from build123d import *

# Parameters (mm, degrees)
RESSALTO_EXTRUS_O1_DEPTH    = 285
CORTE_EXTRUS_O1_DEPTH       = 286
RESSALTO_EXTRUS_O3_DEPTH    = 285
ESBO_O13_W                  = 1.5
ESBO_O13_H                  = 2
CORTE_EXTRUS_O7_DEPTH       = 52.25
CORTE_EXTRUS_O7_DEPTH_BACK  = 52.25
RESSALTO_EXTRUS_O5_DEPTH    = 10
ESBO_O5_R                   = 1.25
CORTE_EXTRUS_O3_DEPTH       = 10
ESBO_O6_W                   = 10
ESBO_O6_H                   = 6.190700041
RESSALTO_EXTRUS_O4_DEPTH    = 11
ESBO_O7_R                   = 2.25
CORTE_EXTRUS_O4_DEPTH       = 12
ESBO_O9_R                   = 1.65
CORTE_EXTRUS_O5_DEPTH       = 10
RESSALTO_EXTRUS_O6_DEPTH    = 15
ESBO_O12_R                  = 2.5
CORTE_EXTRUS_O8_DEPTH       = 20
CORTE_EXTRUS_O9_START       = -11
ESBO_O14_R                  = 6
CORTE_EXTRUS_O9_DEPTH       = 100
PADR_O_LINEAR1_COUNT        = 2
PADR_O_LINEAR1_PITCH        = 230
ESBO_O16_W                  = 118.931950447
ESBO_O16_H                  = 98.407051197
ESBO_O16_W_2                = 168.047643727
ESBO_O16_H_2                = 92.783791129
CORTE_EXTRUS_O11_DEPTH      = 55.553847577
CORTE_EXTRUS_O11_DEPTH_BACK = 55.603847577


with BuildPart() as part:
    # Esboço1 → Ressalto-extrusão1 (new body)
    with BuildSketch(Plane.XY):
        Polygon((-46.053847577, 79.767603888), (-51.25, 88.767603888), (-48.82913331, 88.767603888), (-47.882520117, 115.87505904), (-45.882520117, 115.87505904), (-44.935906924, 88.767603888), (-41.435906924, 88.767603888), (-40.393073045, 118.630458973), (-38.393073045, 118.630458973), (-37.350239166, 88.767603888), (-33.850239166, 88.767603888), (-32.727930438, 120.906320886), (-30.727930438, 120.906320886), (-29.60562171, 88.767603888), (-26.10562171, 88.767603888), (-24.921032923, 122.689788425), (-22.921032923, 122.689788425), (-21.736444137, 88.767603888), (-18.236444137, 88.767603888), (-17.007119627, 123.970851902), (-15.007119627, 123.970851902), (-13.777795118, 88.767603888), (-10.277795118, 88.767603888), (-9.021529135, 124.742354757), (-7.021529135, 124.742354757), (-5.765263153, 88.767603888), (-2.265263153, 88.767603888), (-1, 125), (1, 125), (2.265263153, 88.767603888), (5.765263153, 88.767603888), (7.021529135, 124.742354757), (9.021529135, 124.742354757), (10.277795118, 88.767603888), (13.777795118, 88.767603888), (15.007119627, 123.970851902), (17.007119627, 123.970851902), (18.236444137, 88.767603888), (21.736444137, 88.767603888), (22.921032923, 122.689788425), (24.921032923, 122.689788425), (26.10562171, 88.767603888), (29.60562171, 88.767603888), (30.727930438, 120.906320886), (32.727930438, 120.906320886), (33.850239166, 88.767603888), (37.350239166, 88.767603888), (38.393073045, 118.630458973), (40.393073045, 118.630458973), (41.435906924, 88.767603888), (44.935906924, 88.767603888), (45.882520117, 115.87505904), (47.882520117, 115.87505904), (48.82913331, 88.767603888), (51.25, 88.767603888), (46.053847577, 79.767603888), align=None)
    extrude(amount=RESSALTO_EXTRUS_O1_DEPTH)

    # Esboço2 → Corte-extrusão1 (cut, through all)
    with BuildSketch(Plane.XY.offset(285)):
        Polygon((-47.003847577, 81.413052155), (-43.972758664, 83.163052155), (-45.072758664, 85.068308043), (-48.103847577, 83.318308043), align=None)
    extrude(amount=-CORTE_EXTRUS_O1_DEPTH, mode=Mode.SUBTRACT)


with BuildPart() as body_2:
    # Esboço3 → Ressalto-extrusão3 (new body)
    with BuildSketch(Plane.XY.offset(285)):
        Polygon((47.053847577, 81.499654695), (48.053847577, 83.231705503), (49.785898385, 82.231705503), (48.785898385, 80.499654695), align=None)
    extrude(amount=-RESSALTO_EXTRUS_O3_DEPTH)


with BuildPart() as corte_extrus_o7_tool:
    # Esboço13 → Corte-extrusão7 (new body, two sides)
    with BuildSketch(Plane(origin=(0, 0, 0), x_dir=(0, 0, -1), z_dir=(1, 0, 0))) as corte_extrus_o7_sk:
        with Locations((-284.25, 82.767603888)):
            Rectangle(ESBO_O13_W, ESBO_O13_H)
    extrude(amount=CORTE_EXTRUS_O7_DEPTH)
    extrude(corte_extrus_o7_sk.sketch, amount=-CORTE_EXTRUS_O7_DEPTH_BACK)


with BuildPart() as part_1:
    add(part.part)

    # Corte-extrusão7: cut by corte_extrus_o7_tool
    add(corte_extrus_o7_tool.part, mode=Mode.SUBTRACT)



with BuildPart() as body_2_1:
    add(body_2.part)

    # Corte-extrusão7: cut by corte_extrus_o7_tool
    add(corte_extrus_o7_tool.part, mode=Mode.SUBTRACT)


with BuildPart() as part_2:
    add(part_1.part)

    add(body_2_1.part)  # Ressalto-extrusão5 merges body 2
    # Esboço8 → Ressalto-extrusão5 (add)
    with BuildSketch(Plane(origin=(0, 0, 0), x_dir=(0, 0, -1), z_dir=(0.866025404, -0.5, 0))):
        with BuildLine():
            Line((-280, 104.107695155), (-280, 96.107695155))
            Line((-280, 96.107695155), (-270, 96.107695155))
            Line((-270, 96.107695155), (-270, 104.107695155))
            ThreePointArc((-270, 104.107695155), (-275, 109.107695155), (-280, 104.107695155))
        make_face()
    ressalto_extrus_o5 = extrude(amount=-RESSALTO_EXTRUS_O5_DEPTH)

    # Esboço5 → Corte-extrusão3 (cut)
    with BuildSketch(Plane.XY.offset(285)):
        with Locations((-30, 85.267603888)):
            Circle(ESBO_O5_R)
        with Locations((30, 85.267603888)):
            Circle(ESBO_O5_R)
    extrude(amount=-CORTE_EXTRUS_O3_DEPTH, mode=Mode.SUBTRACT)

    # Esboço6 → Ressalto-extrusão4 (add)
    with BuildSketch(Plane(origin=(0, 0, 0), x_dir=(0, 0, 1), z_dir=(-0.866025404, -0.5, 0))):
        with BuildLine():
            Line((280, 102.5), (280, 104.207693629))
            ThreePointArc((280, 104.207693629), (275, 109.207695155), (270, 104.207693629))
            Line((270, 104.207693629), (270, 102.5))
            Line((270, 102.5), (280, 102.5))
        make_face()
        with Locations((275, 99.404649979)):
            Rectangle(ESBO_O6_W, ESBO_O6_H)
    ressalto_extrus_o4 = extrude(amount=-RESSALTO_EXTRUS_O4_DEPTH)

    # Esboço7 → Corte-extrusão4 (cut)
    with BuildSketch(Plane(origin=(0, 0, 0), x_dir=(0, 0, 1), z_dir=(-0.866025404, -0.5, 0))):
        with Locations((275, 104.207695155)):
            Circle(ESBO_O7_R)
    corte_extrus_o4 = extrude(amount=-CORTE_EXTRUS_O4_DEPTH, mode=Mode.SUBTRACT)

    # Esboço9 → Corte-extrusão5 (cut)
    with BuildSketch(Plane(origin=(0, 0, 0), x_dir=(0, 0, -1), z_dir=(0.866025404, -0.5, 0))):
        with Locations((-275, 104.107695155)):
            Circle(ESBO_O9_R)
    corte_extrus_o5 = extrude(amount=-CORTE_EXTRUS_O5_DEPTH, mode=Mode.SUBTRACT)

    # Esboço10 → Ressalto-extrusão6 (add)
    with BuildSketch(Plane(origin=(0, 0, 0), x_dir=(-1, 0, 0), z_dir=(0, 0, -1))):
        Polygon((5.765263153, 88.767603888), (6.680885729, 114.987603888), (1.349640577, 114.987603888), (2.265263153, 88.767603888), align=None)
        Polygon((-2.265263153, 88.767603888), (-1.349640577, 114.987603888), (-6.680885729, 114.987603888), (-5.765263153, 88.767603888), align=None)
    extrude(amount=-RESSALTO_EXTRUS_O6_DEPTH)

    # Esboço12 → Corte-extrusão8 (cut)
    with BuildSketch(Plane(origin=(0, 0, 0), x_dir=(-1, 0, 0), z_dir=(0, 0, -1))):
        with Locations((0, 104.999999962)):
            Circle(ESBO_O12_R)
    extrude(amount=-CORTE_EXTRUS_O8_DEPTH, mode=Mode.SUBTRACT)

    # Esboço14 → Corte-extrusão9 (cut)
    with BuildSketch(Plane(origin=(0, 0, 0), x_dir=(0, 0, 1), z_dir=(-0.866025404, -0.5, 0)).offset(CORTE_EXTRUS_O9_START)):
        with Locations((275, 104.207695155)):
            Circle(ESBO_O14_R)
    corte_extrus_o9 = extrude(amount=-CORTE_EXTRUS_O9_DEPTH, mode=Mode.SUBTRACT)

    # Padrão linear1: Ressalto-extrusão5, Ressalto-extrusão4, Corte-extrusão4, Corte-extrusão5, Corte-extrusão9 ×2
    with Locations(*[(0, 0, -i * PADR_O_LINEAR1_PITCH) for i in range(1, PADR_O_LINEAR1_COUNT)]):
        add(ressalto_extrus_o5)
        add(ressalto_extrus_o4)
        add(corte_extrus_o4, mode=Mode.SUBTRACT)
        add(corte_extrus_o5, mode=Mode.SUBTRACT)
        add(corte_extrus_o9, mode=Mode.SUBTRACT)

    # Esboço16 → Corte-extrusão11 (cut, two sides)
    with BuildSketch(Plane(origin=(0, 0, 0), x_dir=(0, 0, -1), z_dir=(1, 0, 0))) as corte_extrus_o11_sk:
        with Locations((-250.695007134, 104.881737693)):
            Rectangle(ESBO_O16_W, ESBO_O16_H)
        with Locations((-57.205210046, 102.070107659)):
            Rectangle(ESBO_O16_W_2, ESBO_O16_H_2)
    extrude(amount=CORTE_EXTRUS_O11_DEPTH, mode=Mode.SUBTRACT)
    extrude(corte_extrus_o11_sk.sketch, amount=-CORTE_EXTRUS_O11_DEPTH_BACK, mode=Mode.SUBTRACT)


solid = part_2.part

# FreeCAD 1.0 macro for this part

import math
import FreeCAD as App
import Part
import Sketcher
from FreeCAD import Vector
Q = App.Units.Quantity


def add_polygon(sketch, points):
    """Adds a closed chain of lines whose ends are joined by coincident constraints."""
    first, n = sketch.GeometryCount, len(points)
    for a, b in zip(points, points[1:] + points[:1]):
        sketch.addGeometry(Part.LineSegment(App.Vector(*a, 0), App.Vector(*b, 0)), False)
    for i in range(n):
        sketch.addConstraint(Sketcher.Constraint("Coincident", first + i, 2, first + (i + 1) % n, 1))

doc = App.newDocument("Part")
params = doc.addObject("Spreadsheet::Sheet", "Params")
for row, (alias, value) in enumerate([
    ("sketch1_width", "2 mm"),
    ("sketch1_width2", "3.5 mm"),
    ("pad1_length", "285 mm"),
    ("sketch2_length", "3.5 mm"),
    ("sketch2_length2", "2.2 mm"),
    ("sketch3_length", "2 mm"),
    ("pad2_length", "285 mm"),
    ("sketch4_width", "2 mm"),
    ("sketch4_height", "1.5 mm"),
    ("pad3_length", "52.25 mm"),
    ("pad3_length2", "52.25 mm"),
    ("sketch5_radius", "5 mm"),
    ("sketch5_height", "8 mm"),
    ("pad4_length", "10 mm"),
    ("sketch6_diameter", "2.5 mm"),
    ("pocket2_length", "10 mm"),
    ("sketch7_radius", "5 mm"),
    ("pad5_length", "11 mm"),
    ("sketch8_diameter", "4.5 mm"),
    ("pocket3_length", "12 mm"),
    ("sketch9_diameter", "3.3 mm"),
    ("pocket4_length", "10 mm"),
    ("sketch10_width", "3.5 mm"),
    ("pad6_length", "15 mm"),
    ("sketch11_diameter", "5 mm"),
    ("pocket5_length", "20 mm"),
    ("sketch12_diameter", "12 mm"),
    ("pocket6_length", "100 mm"),
    ("linearpattern_pitch", "230 mm"),
], start=1):
    params.set(f"A{row}", alias)
    params.set(f"B{row}", "=" + value)
    params.setAlias(f"B{row}", alias)

body = doc.addObject("PartDesign::Body", "Body")

# Sketch on XY plane
sketch1 = body.newObject("Sketcher::SketchObject", "Sketch")
sketch1.AttachmentSupport = (doc.getObject("XY_Plane"), [""])
sketch1.MapMode = "FlatFace"
add_polygon(sketch1, [(-51.25, 88.767604), (-46.053848, 79.767604), (46.053848, 79.767604), (51.25, 88.767604), (48.829133, 88.767604), (47.88252, 115.875059), (45.88252, 115.875059), (44.935907, 88.767604), (41.435907, 88.767604), (40.393073, 118.630459), (38.393073, 118.630459), (37.350239, 88.767604), (33.850239, 88.767604), (32.72793, 120.906321), (30.72793, 120.906321), (29.605622, 88.767604), (26.105622, 88.767604), (24.921033, 122.689788), (22.921033, 122.689788), (21.736444, 88.767604), (18.236444, 88.767604), (17.00712, 123.970852), (15.00712, 123.970852), (13.777795, 88.767604), (10.277795, 88.767604), (9.021529, 124.742355), (7.021529, 124.742355), (5.765263, 88.767604), (2.265263, 88.767604), (1, 125), (-1, 125), (-2.265263, 88.767604), (-5.765263, 88.767604), (-7.021529, 124.742355), (-9.021529, 124.742355), (-10.277795, 88.767604), (-13.777795, 88.767604), (-15.00712, 123.970852), (-17.00712, 123.970852), (-18.236444, 88.767604), (-21.736444, 88.767604), (-22.921033, 122.689788), (-24.921033, 122.689788), (-26.105622, 88.767604), (-29.605622, 88.767604), (-30.72793, 120.906321), (-32.72793, 120.906321), (-33.850239, 88.767604), (-37.350239, 88.767604), (-38.393073, 118.630459), (-40.393073, 118.630459), (-41.435907, 88.767604), (-44.935907, 88.767604), (-45.88252, 115.875059), (-47.88252, 115.875059), (-48.829133, 88.767604)])  # lines 0-55
sketch1.addConstraint([
    Sketcher.Constraint("Horizontal", 1),
    Sketcher.Constraint("Horizontal", 3),
    Sketcher.Constraint("Horizontal", 5),
    Sketcher.Constraint("Horizontal", 7),
    Sketcher.Constraint("Horizontal", 9),
    Sketcher.Constraint("Horizontal", 11),
    Sketcher.Constraint("Horizontal", 13),
    Sketcher.Constraint("Horizontal", 15),
    Sketcher.Constraint("Horizontal", 17),
    Sketcher.Constraint("Horizontal", 19),
    Sketcher.Constraint("Horizontal", 21),
    Sketcher.Constraint("Horizontal", 23),
    Sketcher.Constraint("Horizontal", 25),
    Sketcher.Constraint("Horizontal", 27),
    Sketcher.Constraint("Horizontal", 29),
    Sketcher.Constraint("Horizontal", 31),
    Sketcher.Constraint("Horizontal", 33),
    Sketcher.Constraint("Horizontal", 35),
    Sketcher.Constraint("Horizontal", 37),
    Sketcher.Constraint("Horizontal", 39),
    Sketcher.Constraint("Horizontal", 41),
    Sketcher.Constraint("Horizontal", 43),
    Sketcher.Constraint("Horizontal", 45),
    Sketcher.Constraint("Horizontal", 47),
    Sketcher.Constraint("Horizontal", 49),
    Sketcher.Constraint("Horizontal", 51),
    Sketcher.Constraint("Horizontal", 53),
    Sketcher.Constraint("Horizontal", 55),
    Sketcher.Constraint("Symmetric", 27, 2, 30, 2, -2),
    Sketcher.Constraint("Symmetric", 25, 2, 32, 2, -2),
    Sketcher.Constraint("Symmetric", 23, 2, 34, 2, -2),
    Sketcher.Constraint("Symmetric", 21, 2, 36, 2, -2),
    Sketcher.Constraint("Symmetric", 19, 2, 38, 2, -2),
    Sketcher.Constraint("Symmetric", 17, 2, 40, 2, -2),
    Sketcher.Constraint("Symmetric", 15, 2, 42, 2, -2),
    Sketcher.Constraint("Symmetric", 13, 2, 44, 2, -2),
    Sketcher.Constraint("Symmetric", 11, 2, 46, 2, -2),
    Sketcher.Constraint("Symmetric", 9, 2, 48, 2, -2),
    Sketcher.Constraint("Symmetric", 7, 2, 50, 2, -2),
    Sketcher.Constraint("Symmetric", 5, 2, 52, 2, -2),
    Sketcher.Constraint("Symmetric", 3, 2, 54, 2, -2),
    Sketcher.Constraint("Parallel", 4, 8),
    Sketcher.Constraint("Parallel", 6, 10),
    Sketcher.Constraint("Parallel", 8, 12),
    Sketcher.Constraint("Parallel", 10, 14),
    Sketcher.Constraint("Parallel", 12, 16),
    Sketcher.Constraint("Parallel", 14, 18),
    Sketcher.Constraint("Parallel", 16, 20),
    Sketcher.Constraint("Parallel", 18, 22),
    Sketcher.Constraint("Parallel", 20, 24),
    Sketcher.Constraint("Parallel", 22, 26),
    Sketcher.Constraint("Parallel", 24, 28),
    Sketcher.Constraint("Parallel", 26, 30),
    Sketcher.Constraint("Parallel", 28, 32),
    Sketcher.Constraint("Parallel", 30, 34),
    Sketcher.Constraint("Parallel", 32, 36),
    Sketcher.Constraint("Parallel", 34, 38),
    Sketcher.Constraint("Parallel", 36, 40),
    Sketcher.Constraint("Parallel", 38, 42),
    Sketcher.Constraint("Parallel", 40, 44),
    Sketcher.Constraint("Parallel", 42, 46),
    Sketcher.Constraint("Parallel", 44, 48),
    Sketcher.Constraint("Parallel", 46, 50),
    Sketcher.Constraint("Parallel", 48, 52),
    Sketcher.Constraint("Parallel", 50, 54),
    Sketcher.Constraint("Horizontal", 3, 2, 6, 2),
    Sketcher.Constraint("Horizontal", 7, 2, 10, 2),
    Sketcher.Constraint("Horizontal", 11, 2, 14, 2),
    Sketcher.Constraint("Horizontal", 15, 2, 18, 2),
    Sketcher.Constraint("Horizontal", 19, 2, 22, 2),
    Sketcher.Constraint("Horizontal", 23, 2, 26, 2),
    Sketcher.Constraint("Equal", 5, 9),
    Sketcher.Constraint("Equal", 7, 11),
    Sketcher.Constraint("Equal", 9, 13),
    Sketcher.Constraint("Equal", 11, 15),
    Sketcher.Constraint("Equal", 13, 17),
    Sketcher.Constraint("Equal", 15, 19),
    Sketcher.Constraint("Equal", 17, 21),
    Sketcher.Constraint("Equal", 19, 23),
    Sketcher.Constraint("Equal", 21, 25),
    Sketcher.Constraint("Equal", 23, 27),
    Sketcher.Constraint("Equal", 25, 29),
    Sketcher.Constraint("Equal", 27, 31),
    Sketcher.Constraint("Equal", 3, 55),
    Sketcher.Constraint("Equal", 0, 2),
    Sketcher.Constraint("DistanceX", 5, 2, 5, 1, 2.0),
    Sketcher.Constraint("Angle", 0, Q("-60 deg")),
    Sketcher.Constraint("Angle", 4, Q("92 deg")),
    Sketcher.Constraint("DistanceX", 7, 2, 7, 1, 3.5),
    Sketcher.Constraint("DistanceY", -1, 1, 28, 2, 125.0),
    Sketcher.Constraint("DistanceY", 1, 2, 2, 2, 9.0),
    Sketcher.Constraint("DistanceX", -1, 1, 2, 2, 51.25),
    Sketcher.Constraint("DistanceY", 5, 2, 8, 2, 2.7554),
    Sketcher.Constraint("DistanceX", 24, 2, 13, 2, 21.706401),
    Sketcher.Constraint("Distance", 4, 27.123978),
    Sketcher.Constraint("Distance", 16, 33.942862),
    Sketcher.Constraint("Distance", 24, 35.996679),
    Sketcher.Constraint("Distance", 28, 36.254481),
    Sketcher.Constraint("DistanceX", 3, 2, 3, 1, 2.420867),
])
sketch1.setExpression("Constraints[141]", "Params.sketch1_width")
sketch1.setExpression("Constraints[144]", "Params.sketch1_width2")
pad1 = body.newObject("PartDesign::Pad", "Pad")
pad1.Profile = sketch1
pad1.setExpression("Length", "Params.pad1_length")

# Sketch on XY plane
sketch2 = body.newObject("Sketcher::SketchObject", "Sketch001")
sketch2.AttachmentSupport = (doc.getObject("XY_Plane"), [""])
sketch2.MapMode = "FlatFace"
sketch2.AttachmentOffset = App.Placement(Vector(0, 0, 285), App.Rotation())
add_polygon(sketch2, [(-47.003848, 81.413052), (-43.972759, 83.163052), (-45.072759, 85.068308), (-48.103848, 83.318308)])  # lines 0-3
sketch2.addConstraint([
    Sketcher.Constraint("Perpendicular", 0, 1),
    Sketcher.Constraint("Perpendicular", 1, 2),
    Sketcher.Constraint("Perpendicular", 2, 3),
    Sketcher.Constraint("Angle", 0, Q("30 deg")),
    Sketcher.Constraint("Distance", 0, 3.5),
    Sketcher.Constraint("Distance", 1, 2.2),
    Sketcher.Constraint("DistanceX", 0, 2, -1, 1, 43.972759),
    Sketcher.Constraint("DistanceY", -1, 1, 1, 2, 85.068308),
])
sketch2.setExpression("Constraints[8]", "Params.sketch2_length")
sketch2.setExpression("Constraints[9]", "Params.sketch2_length2")
pocket1 = body.newObject("PartDesign::Pocket", "Pocket")
pocket1.Profile = sketch2
pocket1.Type = "ThroughAll"
body2 = doc.addObject("PartDesign::Body", "Body001")

# Sketch on XY plane
sketch3 = body2.newObject("Sketcher::SketchObject", "Sketch002")
sketch3.AttachmentSupport = (doc.getObject("XY_Plane001"), [""])
sketch3.MapMode = "FlatFace"
sketch3.AttachmentOffset = App.Placement(Vector(0, 0, 285), App.Rotation())
add_polygon(sketch3, [(48.053848, 83.231706), (47.053848, 81.499655), (48.785898, 80.499655), (49.785898, 82.231706)])  # lines 0-3
sketch3.addConstraint([
    Sketcher.Constraint("Perpendicular", 0, 1),
    Sketcher.Constraint("Perpendicular", 1, 2),
    Sketcher.Constraint("Perpendicular", 2, 3),
    Sketcher.Constraint("Equal", 0, 1),
    Sketcher.Constraint("Angle", 0, Q("-120 deg")),
    Sketcher.Constraint("Distance", 0, 2.0),
    Sketcher.Constraint("DistanceX", -1, 1, 1, 2, 48.785898),
    Sketcher.Constraint("DistanceY", -1, 1, 0, 2, 81.499655),
])
sketch3.setExpression("Constraints[9]", "Params.sketch3_length")
pad2 = body2.newObject("PartDesign::Pad", "Pad001")
pad2.Profile = sketch3
pad2.setExpression("Length", "Params.pad2_length")
pad2.Reversed = True
body3 = doc.addObject("PartDesign::Body", "Body002")

# Sketch on YZ plane
sketch4 = body3.newObject("Sketcher::SketchObject", "Sketch003")
sketch4.AttachmentSupport = (doc.getObject("YZ_Plane002"), [""])
sketch4.MapMode = "FlatFace"
add_polygon(sketch4, [(83.767604, 285), (81.767604, 285), (81.767604, 283.5), (83.767604, 283.5)])  # lines 0-3
sketch4.addConstraint([
    Sketcher.Constraint("Horizontal", 0),
    Sketcher.Constraint("Vertical", 1),
    Sketcher.Constraint("Horizontal", 2),
    Sketcher.Constraint("Vertical", 3),
    Sketcher.Constraint("DistanceX", 0, 2, 0, 1, 2.0),
    Sketcher.Constraint("DistanceY", 1, 2, 1, 1, 1.5),
    Sketcher.Constraint("DistanceY", -1, 1, 0, 2, 285.0),
    Sketcher.Constraint("DistanceX", -1, 1, 0, 2, 81.767604),
])
sketch4.setExpression("Constraints[8]", "Params.sketch4_width")
sketch4.setExpression("Constraints[9]", "Params.sketch4_height")
pad3 = body3.newObject("PartDesign::Pad", "Pad002")
pad3.Profile = sketch4
pad3.Type = "TwoLengths"
pad3.setExpression("Length", "Params.pad3_length")
pad3.setExpression("Length2", "Params.pad3_length2")
doc.recompute()

body4 = doc.addObject("PartDesign::Body", "Body003")
body4.BaseFeature = body3
boolean = body.newObject("PartDesign::Boolean", "Boolean")
boolean.Type = "Cut"
boolean.addObjects([body4])
doc.recompute()

boolean2 = body2.newObject("PartDesign::Boolean", "Boolean001")
boolean2.Type = "Cut"
boolean2.addObjects([body3])
doc.recompute()

boolean3 = body.newObject("PartDesign::Boolean", "Boolean002")
boolean3.Type = "Fuse"
boolean3.addObjects([body2])

# Sketch on an angled plane
sketch5 = body.newObject("Sketcher::SketchObject", "Sketch004")
sketch5.Placement = App.Placement(Vector(0, 0, 0), App.Rotation(Vector(0, 0, -1), Vector(0.5, 0.866025404, 0), Vector(0.866025404, -0.5, 0), "ZXY"))
sketch5.addGeometry([
    Part.LineSegment(Vector(-280, 104.107695, 0), Vector(-280, 96.107695, 0)),
    Part.LineSegment(Vector(-280, 96.107695, 0), Vector(-270, 96.107695, 0)),
    Part.LineSegment(Vector(-270, 96.107695, 0), Vector(-270, 104.107695, 0)),
    Part.ArcOfCircle(Part.Circle(Vector(-275, 104.107695, 0), Vector(0, 0, 1), 5), math.radians(0), math.radians(180)),
], False)
sketch5.addConstraint([
    Sketcher.Constraint("Coincident", 0, 2, 1, 1),
    Sketcher.Constraint("Coincident", 1, 2, 2, 1),
    Sketcher.Constraint("Tangent", 2, 2, 3, 1),
    Sketcher.Constraint("Tangent", 3, 2, 0, 1),
    Sketcher.Constraint("Vertical", 0),
    Sketcher.Constraint("Horizontal", 1),
    Sketcher.Constraint("Vertical", 2),
    Sketcher.Constraint("Radius", 3, 5.0),
    Sketcher.Constraint("DistanceY", 0, 2, 0, 1, 8.0),
    Sketcher.Constraint("DistanceX", 3, 3, -1, 1, 275.0),
    Sketcher.Constraint("DistanceY", -1, 1, 3, 3, 104.107695),
])
sketch5.setExpression("Constraints[7]", "Params.sketch5_radius")
sketch5.setExpression("Constraints[8]", "Params.sketch5_height")
pad4 = body.newObject("PartDesign::Pad", "Pad003")
pad4.Profile = sketch5
pad4.setExpression("Length", "Params.pad4_length")
pad4.Reversed = True

# Sketch on XY plane
sketch6 = body.newObject("Sketcher::SketchObject", "Sketch005")
sketch6.AttachmentSupport = (doc.getObject("XY_Plane"), [""])
sketch6.MapMode = "FlatFace"
sketch6.AttachmentOffset = App.Placement(Vector(0, 0, 285), App.Rotation())
sketch6.addGeometry([
    Part.Circle(Vector(-30, 85.267604, 0), Vector(0, 0, 1), 1.25),
    Part.Circle(Vector(30, 85.267604, 0), Vector(0, 0, 1), 1.25),
], False)
sketch6.addConstraint([
    Sketcher.Constraint("Equal", 0, 1),
    Sketcher.Constraint("Symmetric", 0, 3, 1, 3, -2),
    Sketcher.Constraint("Diameter", 0, 2.5),
    Sketcher.Constraint("DistanceX", 0, 3, -1, 1, 30.0),
    Sketcher.Constraint("DistanceY", -1, 1, 0, 3, 85.267604),
])
sketch6.setExpression("Constraints[2]", "Params.sketch6_diameter")
pocket2 = body.newObject("PartDesign::Pocket", "Pocket001")
pocket2.Profile = sketch6
pocket2.setExpression("Length", "Params.pocket2_length")

# Sketch on an angled plane
sketch7 = body.newObject("Sketcher::SketchObject", "Sketch006")
sketch7.Placement = App.Placement(Vector(0, 0, 0), App.Rotation(Vector(0, 0, 1), Vector(-0.5, 0.866025404, 0), Vector(-0.866025404, -0.5, 0), "ZXY"))
sketch7.addGeometry([
    Part.ArcOfCircle(Part.Circle(Vector(275, 104.207695, 0), Vector(0, 0, 1), 5), math.radians(-0.000017), math.radians(180.000017)),
    Part.LineSegment(Vector(270, 104.207694, 0), Vector(270, 96.3093, 0)),
    Part.LineSegment(Vector(270, 96.3093, 0), Vector(280, 96.3093, 0)),
    Part.LineSegment(Vector(280, 96.3093, 0), Vector(280, 104.207694, 0)),
], False)
sketch7.addConstraint([
    Sketcher.Constraint("Tangent", 0, 2, 1, 1),
    Sketcher.Constraint("Coincident", 1, 2, 2, 1),
    Sketcher.Constraint("Coincident", 2, 2, 3, 1),
    Sketcher.Constraint("Tangent", 3, 2, 0, 1),
    Sketcher.Constraint("Vertical", 1),
    Sketcher.Constraint("Horizontal", 2),
    Sketcher.Constraint("Vertical", 3),
    Sketcher.Constraint("Radius", 0, 5.0),
    Sketcher.Constraint("DistanceX", -1, 1, 0, 3, 275.0),
    Sketcher.Constraint("DistanceY", -1, 1, 1, 2, 96.3093),
    Sketcher.Constraint("DistanceY", 1, 2, 1, 1, 7.898394),
])
sketch7.setExpression("Constraints[7]", "Params.sketch7_radius")
pad5 = body.newObject("PartDesign::Pad", "Pad004")
pad5.Profile = sketch7
pad5.setExpression("Length", "Params.pad5_length")
pad5.Reversed = True

# Sketch on an angled plane
sketch8 = body.newObject("Sketcher::SketchObject", "Sketch007")
sketch8.Placement = App.Placement(Vector(0, 0, 0), App.Rotation(Vector(0, 0, 1), Vector(-0.5, 0.866025404, 0), Vector(-0.866025404, -0.5, 0), "ZXY"))
sketch8.addGeometry(Part.Circle(Vector(275, 104.207695, 0), Vector(0, 0, 1), 2.25), False)
sketch8.addConstraint([
    Sketcher.Constraint("Diameter", 0, 4.5),
    Sketcher.Constraint("DistanceX", -1, 1, 0, 3, 275.0),
    Sketcher.Constraint("DistanceY", -1, 1, 0, 3, 104.207695),
])
sketch8.setExpression("Constraints[0]", "Params.sketch8_diameter")
pocket3 = body.newObject("PartDesign::Pocket", "Pocket002")
pocket3.Profile = sketch8
pocket3.setExpression("Length", "Params.pocket3_length")

# Sketch on an angled plane
sketch9 = body.newObject("Sketcher::SketchObject", "Sketch008")
sketch9.Placement = App.Placement(Vector(0, 0, 0), App.Rotation(Vector(0, 0, -1), Vector(0.5, 0.866025404, 0), Vector(0.866025404, -0.5, 0), "ZXY"))
sketch9.addGeometry(Part.Circle(Vector(-275, 104.107695, 0), Vector(0, 0, 1), 1.65), False)
sketch9.addConstraint([
    Sketcher.Constraint("Diameter", 0, 3.3),
    Sketcher.Constraint("DistanceX", 0, 3, -1, 1, 275.0),
    Sketcher.Constraint("DistanceY", -1, 1, 0, 3, 104.107695),
])
sketch9.setExpression("Constraints[0]", "Params.sketch9_diameter")
pocket4 = body.newObject("PartDesign::Pocket", "Pocket003")
pocket4.Profile = sketch9
pocket4.setExpression("Length", "Params.pocket4_length")

# Sketch on XY plane
sketch10 = body.newObject("Sketcher::SketchObject", "Sketch009")
sketch10.AttachmentSupport = (doc.getObject("XY_Plane"), [""])
sketch10.MapMode = "FlatFace"
add_polygon(sketch10, [(-5.765263, 88.767604), (-6.680886, 114.987604), (-1.349641, 114.987604), (-2.265263, 88.767604)])  # lines 0-3
add_polygon(sketch10, [(2.265263, 88.767604), (1.349641, 114.987604), (6.680886, 114.987604), (5.765263, 88.767604)])  # lines 4-7
sketch10.addConstraint([
    Sketcher.Constraint("Horizontal", 1),
    Sketcher.Constraint("Horizontal", 3),
    Sketcher.Constraint("Horizontal", 5),
    Sketcher.Constraint("Horizontal", 7),
    Sketcher.Constraint("Symmetric", 1, 2, 4, 2, -2),
    Sketcher.Constraint("Symmetric", 3, 2, 6, 2, -2),
    Sketcher.Constraint("Parallel", 0, 4),
    Sketcher.Constraint("Parallel", 2, 6),
    Sketcher.Constraint("Equal", 1, 5),
    Sketcher.Constraint("Angle", 0, Q("92 deg")),
    Sketcher.Constraint("DistanceX", 3, 2, 3, 1, 3.5),
    Sketcher.Constraint("DistanceY", 2, 2, 1, 2, 26.22),
    Sketcher.Constraint("DistanceX", 1, 2, -1, 1, 1.349641),
    Sketcher.Constraint("DistanceY", -1, 1, 0, 2, 114.987604),
])
sketch10.setExpression("Constraints[18]", "Params.sketch10_width")
pad6 = body.newObject("PartDesign::Pad", "Pad005")
pad6.Profile = sketch10
pad6.setExpression("Length", "Params.pad6_length")

# Sketch on XY plane
sketch11 = body.newObject("Sketcher::SketchObject", "Sketch010")
sketch11.AttachmentSupport = (doc.getObject("XY_Plane"), [""])
sketch11.MapMode = "FlatFace"
sketch11.addGeometry(Part.Circle(Vector(0, 105, 0), Vector(0, 0, 1), 2.5), False)
sketch11.addConstraint([
    Sketcher.Constraint("PointOnObject", 0, 3, -2),
    Sketcher.Constraint("Diameter", 0, 5.0),
    Sketcher.Constraint("DistanceY", -1, 1, 0, 3, 105.0),
])
sketch11.setExpression("Constraints[1]", "Params.sketch11_diameter")
pocket5 = body.newObject("PartDesign::Pocket", "Pocket004")
pocket5.Profile = sketch11
pocket5.setExpression("Length", "Params.pocket5_length")
pocket5.Reversed = True

# Sketch on an angled plane
sketch12 = body.newObject("Sketcher::SketchObject", "Sketch011")
sketch12.Placement = App.Placement(Vector(9.526279, 5.5, 0), App.Rotation(Vector(0, 0, 1), Vector(-0.5, 0.866025404, 0), Vector(-0.866025404, -0.5, 0), "ZXY"))
sketch12.addGeometry(Part.Circle(Vector(275, 104.207695, 0), Vector(0, 0, 1), 6), False)
sketch12.addConstraint([
    Sketcher.Constraint("Diameter", 0, 12.0),
    Sketcher.Constraint("DistanceX", -1, 1, 0, 3, 275.0),
    Sketcher.Constraint("DistanceY", -1, 1, 0, 3, 104.207695),
])
sketch12.setExpression("Constraints[0]", "Params.sketch12_diameter")
pocket6 = body.newObject("PartDesign::Pocket", "Pocket005")
pocket6.Profile = sketch12
pocket6.setExpression("Length", "Params.pocket6_length")
doc.recompute()

linearpattern = body.newObject("PartDesign::LinearPattern", "LinearPattern")
linearpattern.Originals = [pad4, pad5, pocket3, pocket4, pocket6]
linearpattern.Direction = (doc.getObject("Z_Axis"), [""])
linearpattern.Mode = "offset"
linearpattern.setExpression("Offset", "Params.linearpattern_pitch")
linearpattern.Occurrences = 2
linearpattern.Reversed = True
body.Tip = linearpattern

# Sketch on YZ plane
sketch13 = body.newObject("Sketcher::SketchObject", "Sketch012")
sketch13.AttachmentSupport = (doc.getObject("YZ_Plane"), [""])
sketch13.MapMode = "FlatFace"
add_polygon(sketch13, [(154.085263, 310.160982), (55.678212, 310.160982), (55.678212, 191.229032), (154.085263, 191.229032)])  # lines 0-3
add_polygon(sketch13, [(148.462003, 141.229032), (55.678212, 141.229032), (55.678212, -26.818612), (148.462003, -26.818612)])  # lines 4-7
sketch13.addConstraint([
    Sketcher.Constraint("Horizontal", 0),
    Sketcher.Constraint("Vertical", 1),
    Sketcher.Constraint("Horizontal", 2),
    Sketcher.Constraint("Vertical", 3),
    Sketcher.Constraint("Horizontal", 4),
    Sketcher.Constraint("Vertical", 5),
    Sketcher.Constraint("Horizontal", 6),
    Sketcher.Constraint("Vertical", 7),
    Sketcher.Constraint("Vertical", 1, 2, 4, 2),
    Sketcher.Constraint("DistanceY", 4, 2, 1, 2, 50.0),
    Sketcher.Constraint("DistanceX", 0, 2, 0, 1, 98.407051),
    Sketcher.Constraint("DistanceX", 4, 2, 4, 1, 92.783791),
    Sketcher.Constraint("DistanceY", 1, 2, 1, 1, 118.93195),
    Sketcher.Constraint("DistanceY", 5, 2, 5, 1, 168.047644),
    Sketcher.Constraint("DistanceY", -1, 1, 1, 2, 191.229032),
    Sketcher.Constraint("DistanceX", -1, 1, 0, 2, 55.678212),
])
pocket7 = body.newObject("PartDesign::Pocket", "Pocket006")
pocket7.Profile = sketch13
pocket7.Type = "ThroughAll"
pocket7.Midplane = True

doc.recompute()
